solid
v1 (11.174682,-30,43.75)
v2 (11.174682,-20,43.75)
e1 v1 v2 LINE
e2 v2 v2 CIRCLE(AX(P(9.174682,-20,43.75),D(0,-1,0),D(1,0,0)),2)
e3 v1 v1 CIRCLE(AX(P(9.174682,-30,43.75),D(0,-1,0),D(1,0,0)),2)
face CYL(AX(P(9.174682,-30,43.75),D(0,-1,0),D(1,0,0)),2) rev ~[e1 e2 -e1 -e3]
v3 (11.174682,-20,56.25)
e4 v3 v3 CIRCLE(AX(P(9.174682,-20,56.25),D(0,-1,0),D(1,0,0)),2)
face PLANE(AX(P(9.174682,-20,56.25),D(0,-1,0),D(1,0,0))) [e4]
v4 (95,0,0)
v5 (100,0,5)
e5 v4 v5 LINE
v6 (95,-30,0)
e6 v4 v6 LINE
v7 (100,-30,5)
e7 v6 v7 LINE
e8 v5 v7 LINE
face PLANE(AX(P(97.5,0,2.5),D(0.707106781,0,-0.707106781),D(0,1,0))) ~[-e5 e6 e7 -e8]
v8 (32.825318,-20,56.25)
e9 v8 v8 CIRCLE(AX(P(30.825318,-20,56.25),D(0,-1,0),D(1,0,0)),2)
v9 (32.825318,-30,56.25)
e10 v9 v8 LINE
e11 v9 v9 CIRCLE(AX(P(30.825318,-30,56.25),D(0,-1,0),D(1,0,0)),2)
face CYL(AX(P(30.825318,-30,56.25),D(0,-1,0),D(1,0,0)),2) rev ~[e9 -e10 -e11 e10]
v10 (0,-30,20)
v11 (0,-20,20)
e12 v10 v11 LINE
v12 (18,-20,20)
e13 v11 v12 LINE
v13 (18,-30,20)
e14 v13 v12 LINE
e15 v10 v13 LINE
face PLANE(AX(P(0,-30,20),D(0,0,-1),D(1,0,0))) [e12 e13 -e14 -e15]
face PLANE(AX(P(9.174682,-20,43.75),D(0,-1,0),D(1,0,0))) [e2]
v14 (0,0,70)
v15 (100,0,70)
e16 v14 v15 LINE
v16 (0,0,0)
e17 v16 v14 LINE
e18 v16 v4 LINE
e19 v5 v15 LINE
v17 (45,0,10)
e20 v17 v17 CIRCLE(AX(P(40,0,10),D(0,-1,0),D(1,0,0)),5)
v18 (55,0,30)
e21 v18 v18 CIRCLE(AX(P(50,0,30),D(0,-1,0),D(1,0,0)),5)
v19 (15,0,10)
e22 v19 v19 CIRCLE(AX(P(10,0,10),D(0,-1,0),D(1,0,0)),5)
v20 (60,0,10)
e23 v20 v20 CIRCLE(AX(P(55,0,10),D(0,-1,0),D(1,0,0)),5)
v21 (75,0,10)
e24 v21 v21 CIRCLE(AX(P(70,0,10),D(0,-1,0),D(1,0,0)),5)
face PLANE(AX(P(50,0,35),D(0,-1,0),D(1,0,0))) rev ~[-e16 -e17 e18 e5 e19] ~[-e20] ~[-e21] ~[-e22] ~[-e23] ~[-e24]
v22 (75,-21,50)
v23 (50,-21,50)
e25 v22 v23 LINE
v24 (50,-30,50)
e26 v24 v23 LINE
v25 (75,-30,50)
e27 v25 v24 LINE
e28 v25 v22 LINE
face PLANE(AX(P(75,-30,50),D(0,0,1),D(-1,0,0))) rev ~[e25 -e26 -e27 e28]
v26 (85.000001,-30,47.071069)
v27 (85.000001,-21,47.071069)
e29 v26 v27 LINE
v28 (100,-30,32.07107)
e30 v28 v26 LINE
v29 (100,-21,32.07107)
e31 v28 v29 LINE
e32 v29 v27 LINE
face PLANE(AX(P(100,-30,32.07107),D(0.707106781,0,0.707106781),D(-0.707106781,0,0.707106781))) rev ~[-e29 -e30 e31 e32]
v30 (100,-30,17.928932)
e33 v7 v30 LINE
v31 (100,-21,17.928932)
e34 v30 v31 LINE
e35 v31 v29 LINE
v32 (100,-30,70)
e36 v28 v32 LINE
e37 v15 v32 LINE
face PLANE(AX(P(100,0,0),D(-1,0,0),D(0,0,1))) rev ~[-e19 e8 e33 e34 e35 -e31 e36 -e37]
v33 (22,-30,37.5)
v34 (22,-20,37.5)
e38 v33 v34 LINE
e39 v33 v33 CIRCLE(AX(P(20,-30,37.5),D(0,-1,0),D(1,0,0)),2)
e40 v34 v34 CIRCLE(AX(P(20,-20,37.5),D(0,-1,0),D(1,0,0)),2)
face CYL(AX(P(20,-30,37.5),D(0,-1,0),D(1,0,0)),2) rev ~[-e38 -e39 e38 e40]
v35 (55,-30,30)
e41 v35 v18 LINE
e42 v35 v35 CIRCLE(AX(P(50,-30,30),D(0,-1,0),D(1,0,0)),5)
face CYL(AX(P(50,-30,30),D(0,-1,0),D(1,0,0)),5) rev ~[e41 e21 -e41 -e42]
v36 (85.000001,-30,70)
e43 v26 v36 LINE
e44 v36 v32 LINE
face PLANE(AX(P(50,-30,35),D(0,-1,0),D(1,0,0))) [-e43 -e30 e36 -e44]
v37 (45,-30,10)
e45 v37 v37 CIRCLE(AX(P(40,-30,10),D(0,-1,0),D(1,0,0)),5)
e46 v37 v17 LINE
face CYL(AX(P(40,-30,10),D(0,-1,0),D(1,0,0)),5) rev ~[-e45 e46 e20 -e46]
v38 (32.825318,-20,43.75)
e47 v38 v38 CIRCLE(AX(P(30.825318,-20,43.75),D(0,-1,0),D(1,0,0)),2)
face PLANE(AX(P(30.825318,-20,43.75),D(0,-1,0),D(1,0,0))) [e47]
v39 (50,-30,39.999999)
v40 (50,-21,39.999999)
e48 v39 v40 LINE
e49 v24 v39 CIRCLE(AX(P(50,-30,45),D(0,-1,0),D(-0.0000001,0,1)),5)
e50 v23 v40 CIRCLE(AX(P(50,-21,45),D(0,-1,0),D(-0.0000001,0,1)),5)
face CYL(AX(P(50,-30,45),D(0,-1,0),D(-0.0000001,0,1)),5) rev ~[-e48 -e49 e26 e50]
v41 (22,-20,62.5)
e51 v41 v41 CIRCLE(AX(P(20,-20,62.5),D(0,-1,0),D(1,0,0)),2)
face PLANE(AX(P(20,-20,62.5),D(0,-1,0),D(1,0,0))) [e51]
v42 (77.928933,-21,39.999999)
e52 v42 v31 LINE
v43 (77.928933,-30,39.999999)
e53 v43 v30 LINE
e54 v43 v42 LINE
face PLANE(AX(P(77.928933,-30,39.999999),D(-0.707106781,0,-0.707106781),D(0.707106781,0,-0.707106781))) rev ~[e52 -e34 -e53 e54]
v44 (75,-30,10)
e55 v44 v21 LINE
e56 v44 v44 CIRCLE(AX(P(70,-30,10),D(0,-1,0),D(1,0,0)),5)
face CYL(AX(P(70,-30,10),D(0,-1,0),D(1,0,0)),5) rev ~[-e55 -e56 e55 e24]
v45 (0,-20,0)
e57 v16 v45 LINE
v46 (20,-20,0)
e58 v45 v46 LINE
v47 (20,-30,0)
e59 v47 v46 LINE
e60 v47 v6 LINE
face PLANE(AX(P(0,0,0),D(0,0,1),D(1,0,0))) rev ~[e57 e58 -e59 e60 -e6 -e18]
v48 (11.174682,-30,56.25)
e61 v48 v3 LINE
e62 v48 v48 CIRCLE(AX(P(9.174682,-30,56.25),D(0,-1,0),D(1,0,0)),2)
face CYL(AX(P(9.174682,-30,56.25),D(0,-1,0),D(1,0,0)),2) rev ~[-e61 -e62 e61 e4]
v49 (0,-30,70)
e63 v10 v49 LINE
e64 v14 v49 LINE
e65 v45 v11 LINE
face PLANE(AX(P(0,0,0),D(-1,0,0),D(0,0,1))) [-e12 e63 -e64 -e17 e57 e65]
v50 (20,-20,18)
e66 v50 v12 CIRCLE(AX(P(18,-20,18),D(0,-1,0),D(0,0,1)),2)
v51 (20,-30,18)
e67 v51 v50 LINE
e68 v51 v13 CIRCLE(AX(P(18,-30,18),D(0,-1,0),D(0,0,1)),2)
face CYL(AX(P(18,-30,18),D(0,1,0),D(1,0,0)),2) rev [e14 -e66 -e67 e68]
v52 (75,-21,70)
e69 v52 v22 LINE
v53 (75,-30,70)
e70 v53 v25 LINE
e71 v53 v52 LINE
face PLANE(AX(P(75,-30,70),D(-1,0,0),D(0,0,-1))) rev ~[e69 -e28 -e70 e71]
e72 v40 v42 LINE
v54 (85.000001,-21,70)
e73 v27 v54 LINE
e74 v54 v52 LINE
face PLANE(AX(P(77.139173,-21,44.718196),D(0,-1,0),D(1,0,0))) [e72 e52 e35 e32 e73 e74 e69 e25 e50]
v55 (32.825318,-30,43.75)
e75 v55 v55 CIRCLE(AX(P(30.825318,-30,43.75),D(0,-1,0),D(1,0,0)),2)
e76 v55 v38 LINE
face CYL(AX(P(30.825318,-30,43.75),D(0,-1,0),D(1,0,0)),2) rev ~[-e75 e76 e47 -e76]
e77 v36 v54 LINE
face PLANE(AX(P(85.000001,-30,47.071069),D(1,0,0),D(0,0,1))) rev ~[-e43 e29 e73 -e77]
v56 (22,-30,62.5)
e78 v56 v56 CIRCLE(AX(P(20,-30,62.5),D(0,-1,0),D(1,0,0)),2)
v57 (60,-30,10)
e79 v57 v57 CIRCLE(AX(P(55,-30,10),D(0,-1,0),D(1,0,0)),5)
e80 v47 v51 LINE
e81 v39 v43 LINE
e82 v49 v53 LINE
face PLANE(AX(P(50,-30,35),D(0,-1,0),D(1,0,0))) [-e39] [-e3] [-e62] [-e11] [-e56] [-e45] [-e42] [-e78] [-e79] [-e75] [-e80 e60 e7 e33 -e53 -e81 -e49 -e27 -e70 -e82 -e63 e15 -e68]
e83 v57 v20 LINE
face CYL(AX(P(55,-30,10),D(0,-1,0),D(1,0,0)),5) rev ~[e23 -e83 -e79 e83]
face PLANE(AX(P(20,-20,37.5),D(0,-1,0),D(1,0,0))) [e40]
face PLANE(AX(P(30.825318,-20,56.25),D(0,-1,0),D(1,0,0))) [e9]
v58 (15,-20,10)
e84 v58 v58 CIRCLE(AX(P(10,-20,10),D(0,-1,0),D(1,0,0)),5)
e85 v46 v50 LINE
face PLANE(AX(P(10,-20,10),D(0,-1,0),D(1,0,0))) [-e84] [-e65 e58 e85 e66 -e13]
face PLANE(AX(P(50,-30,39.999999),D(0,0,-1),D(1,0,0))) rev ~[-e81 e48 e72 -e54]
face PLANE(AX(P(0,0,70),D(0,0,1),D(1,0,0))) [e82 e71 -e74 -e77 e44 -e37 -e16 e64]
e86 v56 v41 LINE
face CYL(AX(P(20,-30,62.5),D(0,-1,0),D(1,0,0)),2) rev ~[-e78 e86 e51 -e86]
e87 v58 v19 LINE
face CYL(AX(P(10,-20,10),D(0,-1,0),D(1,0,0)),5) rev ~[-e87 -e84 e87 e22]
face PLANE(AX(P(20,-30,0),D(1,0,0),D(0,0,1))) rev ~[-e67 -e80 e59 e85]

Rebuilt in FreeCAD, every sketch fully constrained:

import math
import FreeCAD as App
import Part
import Sketcher

V = App.Vector
Q = App.Units.Quantity


def edges_at(feature, points):
    """Names of the edges that pass closest to the given points."""
    edges = feature.Shape.Edges
    near = lambda p: min(range(len(edges)), key=lambda i: edges[i].distToShape(Part.Vertex(*p))[0])
    return sorted({f"Edge{near(p) + 1}" for p in points})


def add_polygon(sketch, points):
    """Adds a closed chain of lines whose ends are joined by coincident constraints."""
    first, n = sketch.GeometryCount, len(points)
    for a, b in zip(points, points[1:] + points[:1]):
        sketch.addGeometry(Part.LineSegment(App.Vector(*a, 0), App.Vector(*b, 0)), False)
    for i in range(n):
        sketch.addConstraint(Sketcher.Constraint("Coincident", first + i, 2, first + (i + 1) % n, 1))

doc = App.newDocument("Part")
params = doc.addObject("Spreadsheet::Sheet", "Params")
for row, (alias, value) in enumerate([
    ("sketch1_width", "100 mm"),
    ("sketch1_height", "70 mm"),
    ("pad1_length", "30 mm"),
    ("sketch2_radius", "5 mm"),
    ("sketch2_width", "10.000001 mm"),
    ("sketch2_width2", "25 mm"),
    ("sketch2_height", "20 mm"),
    ("pocket1_length", "9 mm"),
    ("sketch3_width", "20 mm"),
    ("pocket2_length", "10 mm"),
    ("sketch4_diameter", "10 mm"),
    ("pocket3_length", "25 mm"),
    ("sketch5_diameter", "4 mm"),
    ("pocket4_length", "10 mm"),
    ("sketch6_diameter", "10 mm"),
    ("pocket5_length", "41.45141 mm"),
    ("chamfer_size", "5 mm"),
    ("fillet_radius", "2 mm"),
], start=1):
    params.set(f"A{row}", alias)
    params.set(f"B{row}", "=" + value)
    params.setAlias(f"B{row}", alias)

body = doc.addObject("PartDesign::Body", "Body")

sketch1 = body.newObject("Sketcher::SketchObject", "Sketch")
sketch1.AttachmentSupport = (doc.getObject("XZ_Plane"), [""])
sketch1.MapMode = "FlatFace"
add_polygon(sketch1, [(0, 70), (0, 0), (100, 0), (100, 70)])
sketch1.addConstraint([
    Sketcher.Constraint("Vertical", 0),
    Sketcher.Constraint("Horizontal", 1),
    Sketcher.Constraint("Vertical", 2),
    Sketcher.Constraint("Horizontal", 3),
    Sketcher.Constraint("Coincident", 0, 2, -1, 1),
    Sketcher.Constraint("DistanceX", 1, 1, 1, 2, 100.0),
    Sketcher.Constraint("DistanceY", 0, 2, 0, 1, 70.0),
])
sketch1.setExpression("Constraints[9]", "Params.sketch1_width")
sketch1.setExpression("Constraints[10]", "Params.sketch1_height")
pad1 = body.newObject("PartDesign::Pad", "Pad")
pad1.Profile = sketch1
pad1.setExpression("Length", "Params.pad1_length")

sketch2 = body.newObject("Sketcher::SketchObject", "Sketch001")
sketch2.AttachmentSupport = (doc.getObject("XZ_Plane"), [""])
sketch2.MapMode = "FlatFace"
sketch2.AttachmentOffset = App.Placement(V(0, 0, 30), App.Rotation())
sketch2.addGeometry([
    Part.LineSegment(V(85, 70, 0), V(75, 70, 0)),
    Part.LineSegment(V(75, 70, 0), V(75, 50, 0)),
    Part.LineSegment(V(75, 50, 0), V(50, 50, 0)),
    Part.ArcOfCircle(Part.Circle(V(50, 45, 0), V(0, 0, 1), 5), math.radians(90), math.radians(270)),
    Part.LineSegment(V(50, 40, 0), V(78, 40, 0)),
    Part.LineSegment(V(78, 40, 0), V(100, 18, 0)),
    Part.LineSegment(V(100, 18, 0), V(100, 32, 0)),
    Part.LineSegment(V(100, 32, 0), V(85, 47, 0)),
    Part.LineSegment(V(85, 47, 0), V(85, 70, 0)),
], False)
sketch2.addConstraint([
    Sketcher.Constraint("Coincident", 0, 2, 1, 1),
    Sketcher.Constraint("Coincident", 1, 2, 2, 1),
    Sketcher.Constraint("Tangent", 2, 2, 3, 1),
    Sketcher.Constraint("Tangent", 3, 2, 4, 1),
    Sketcher.Constraint("Coincident", 4, 2, 5, 1),
    Sketcher.Constraint("Coincident", 5, 2, 6, 1),
    Sketcher.Constraint("Coincident", 6, 2, 7, 1),
    Sketcher.Constraint("Coincident", 7, 2, 8, 1),
    Sketcher.Constraint("Coincident", 8, 2, 0, 1),
    Sketcher.Constraint("Horizontal", 0),
    Sketcher.Constraint("Vertical", 1),
    Sketcher.Constraint("Horizontal", 2),
    Sketcher.Constraint("Horizontal", 4),
    Sketcher.Constraint("Vertical", 6),
    Sketcher.Constraint("Vertical", 8),
    Sketcher.Constraint("Parallel", 5, 7),
    Sketcher.Constraint("Radius", 3, 5.0),
    Sketcher.Constraint("DistanceX", 0, 2, 0, 1, 10.000001),
    Sketcher.Constraint("DistanceX", 2, 2, 2, 1, 25.0),
    Sketcher.Constraint("DistanceY", 1, 2, 1, 1, 20.0),
    Sketcher.Constraint("Angle", 5, Q("-45 deg")),
    Sketcher.Constraint("DistanceX", -1, 1, 3, 3, 50.0),
    Sketcher.Constraint("DistanceY", -1, 1, 3, 3, 45.0),
    Sketcher.Constraint("DistanceX", -1, 1, 5, 2, 100.0),
    Sketcher.Constraint("DistanceY", 8, 1, 8, 2, 22.928931),
    Sketcher.Constraint("DistanceX", 4, 1, 4, 2, 27.928933),
])
sketch2.setExpression("Constraints[16]", "Params.sketch2_radius")
sketch2.setExpression("Constraints[17]", "Params.sketch2_width")
sketch2.setExpression("Constraints[18]", "Params.sketch2_width2")
sketch2.setExpression("Constraints[19]", "Params.sketch2_height")
pocket1 = body.newObject("PartDesign::Pocket", "Pocket")
pocket1.Profile = sketch2
pocket1.setExpression("Length", "Params.pocket1_length")

sketch3 = body.newObject("Sketcher::SketchObject", "Sketch002")
sketch3.AttachmentSupport = (doc.getObject("XZ_Plane"), [""])
sketch3.MapMode = "FlatFace"
sketch3.AttachmentOffset = App.Placement(V(0, 0, 30), App.Rotation())
add_polygon(sketch3, [(0, 20), (0, 0), (20, 0), (20, 20)])
sketch3.addConstraint([
    Sketcher.Constraint("Vertical", 0),
    Sketcher.Constraint("Horizontal", 1),
    Sketcher.Constraint("Vertical", 2),
    Sketcher.Constraint("Horizontal", 3),
    Sketcher.Constraint("Coincident", 0, 2, -1, 1),
    Sketcher.Constraint("Equal", 3, 0),
    Sketcher.Constraint("DistanceX", 1, 1, 1, 2, 20.0),
])
sketch3.setExpression("Constraints[10]", "Params.sketch3_width")
pocket2 = body.newObject("PartDesign::Pocket", "Pocket001")
pocket2.Profile = sketch3
pocket2.setExpression("Length", "Params.pocket2_length")

sketch4 = body.newObject("Sketcher::SketchObject", "Sketch003")
sketch4.AttachmentSupport = (doc.getObject("XZ_Plane"), [""])
sketch4.MapMode = "FlatFace"
sketch4.AttachmentOffset = App.Placement(V(0, 0, 20), App.Rotation())
sketch4.addGeometry(Part.Circle(V(10, 10, 0), V(0, 0, 1), 5), False)
sketch4.addConstraint([
    Sketcher.Constraint("Diameter", 0, 10.0),
    Sketcher.Constraint("DistanceX", -1, 1, 0, 3, 10.0),
    Sketcher.Constraint("DistanceY", -1, 1, 0, 3, 10.0),
])
sketch4.setExpression("Constraints[0]", "Params.sketch4_diameter")
pocket3 = body.newObject("PartDesign::Pocket", "Pocket002")
pocket3.Profile = sketch4
pocket3.setExpression("Length", "Params.pocket3_length")

sketch5 = body.newObject("Sketcher::SketchObject", "Sketch004")
sketch5.AttachmentSupport = (doc.getObject("XZ_Plane"), [""])
sketch5.MapMode = "FlatFace"
sketch5.AttachmentOffset = App.Placement(V(0, 0, 30), App.Rotation())
sketch5.addGeometry([
    Part.Circle(V(20, 62.5, 0), V(0, 0, 1), 2),
    Part.Circle(V(9.2, 56.2, 0), V(0, 0, 1), 2),
    Part.Circle(V(9.2, 43.8, 0), V(0, 0, 1), 2),
    Part.Circle(V(20, 37.5, 0), V(0, 0, 1), 2),
    Part.Circle(V(30.8, 43.8, 0), V(0, 0, 1), 2),
    Part.Circle(V(30.8, 56.2, 0), V(0, 0, 1), 2),
], False)
sketch5.addConstraint([
    Sketcher.Constraint("Equal", 0, 1),
    Sketcher.Constraint("Equal", 1, 2),
    Sketcher.Constraint("Equal", 2, 3),
    Sketcher.Constraint("Equal", 3, 4),
    Sketcher.Constraint("Equal", 4, 5),
    Sketcher.Constraint("Horizontal", 2, 3, 4, 3),
    Sketcher.Constraint("Horizontal", 1, 3, 5, 3),
    Sketcher.Constraint("Vertical", 1, 3, 2, 3),
    Sketcher.Constraint("Vertical", 0, 3, 3, 3),
    Sketcher.Constraint("Vertical", 4, 3, 5, 3),
    Sketcher.Constraint("Diameter", 0, 4.0),
    Sketcher.Constraint("DistanceX", -1, 1, 0, 3, 20.0),
    Sketcher.Constraint("DistanceY", 3, 3, 0, 3, 25.0),
    Sketcher.Constraint("DistanceY", -1, 1, 0, 3, 62.5),
    Sketcher.Constraint("DistanceY", 2, 3, 1, 3, 12.5),
    Sketcher.Constraint("DistanceY", -1, 1, 1, 3, 56.25),
    Sketcher.Constraint("DistanceX", -1, 1, 1, 3, 9.174682),
    Sketcher.Constraint("DistanceX", -1, 1, 4, 3, 30.825318),
])
sketch5.setExpression("Constraints[10]", "Params.sketch5_diameter")
pocket4 = body.newObject("PartDesign::Pocket", "Pocket003")
pocket4.Profile = sketch5
pocket4.setExpression("Length", "Params.pocket4_length")

sketch6 = body.newObject("Sketcher::SketchObject", "Sketch005")
sketch6.AttachmentSupport = (doc.getObject("XZ_Plane"), [""])
sketch6.MapMode = "FlatFace"
sketch6.AttachmentOffset = App.Placement(V(0, 0, 30), App.Rotation())
sketch6.addGeometry([
    Part.Circle(V(40, 10, 0), V(0, 0, 1), 5),
    Part.Circle(V(55, 10, 0), V(0, 0, 1), 5),
    Part.Circle(V(70, 10, 0), V(0, 0, 1), 5),
    Part.Circle(V(50, 30, 0), V(0, 0, 1), 5),
], False)
sketch6.addConstraint([
    Sketcher.Constraint("Equal", 0, 1),
    Sketcher.Constraint("Equal", 1, 2),
    Sketcher.Constraint("Equal", 2, 3),
    Sketcher.Constraint("Horizontal", 0, 3, 1, 3),
    Sketcher.Constraint("Horizontal", 1, 3, 2, 3),
    Sketcher.Constraint("Diameter", 0, 10.0),
    Sketcher.Constraint("DistanceX", -1, 1, 0, 3, 40.0),
    Sketcher.Constraint("DistanceY", -1, 1, 0, 3, 10.0),
    Sketcher.Constraint("DistanceX", -1, 1, 1, 3, 55.0),
    Sketcher.Constraint("DistanceX", -1, 1, 2, 3, 70.0),
    Sketcher.Constraint("DistanceX", -1, 1, 3, 3, 50.0),
    Sketcher.Constraint("DistanceY", -1, 1, 3, 3, 30.0),
])
sketch6.setExpression("Constraints[5]", "Params.sketch6_diameter")
pocket5 = body.newObject("PartDesign::Pocket", "Pocket004")
pocket5.Profile = sketch6
pocket5.setExpression("Length", "Params.pocket5_length")
doc.recompute()

chamfer = body.newObject("PartDesign::Chamfer", "Chamfer")
chamfer.Base = (pocket5, edges_at(pocket5, [(100, -15, 0)]))
chamfer.setExpression("Size", "Params.chamfer_size")
doc.recompute()

fillet = body.newObject("PartDesign::Fillet", "Fillet")
fillet.Base = (chamfer, edges_at(chamfer, [(20, -25, 20)]))
fillet.setExpression("Radius", "Params.fillet_radius")

doc.recompute()
